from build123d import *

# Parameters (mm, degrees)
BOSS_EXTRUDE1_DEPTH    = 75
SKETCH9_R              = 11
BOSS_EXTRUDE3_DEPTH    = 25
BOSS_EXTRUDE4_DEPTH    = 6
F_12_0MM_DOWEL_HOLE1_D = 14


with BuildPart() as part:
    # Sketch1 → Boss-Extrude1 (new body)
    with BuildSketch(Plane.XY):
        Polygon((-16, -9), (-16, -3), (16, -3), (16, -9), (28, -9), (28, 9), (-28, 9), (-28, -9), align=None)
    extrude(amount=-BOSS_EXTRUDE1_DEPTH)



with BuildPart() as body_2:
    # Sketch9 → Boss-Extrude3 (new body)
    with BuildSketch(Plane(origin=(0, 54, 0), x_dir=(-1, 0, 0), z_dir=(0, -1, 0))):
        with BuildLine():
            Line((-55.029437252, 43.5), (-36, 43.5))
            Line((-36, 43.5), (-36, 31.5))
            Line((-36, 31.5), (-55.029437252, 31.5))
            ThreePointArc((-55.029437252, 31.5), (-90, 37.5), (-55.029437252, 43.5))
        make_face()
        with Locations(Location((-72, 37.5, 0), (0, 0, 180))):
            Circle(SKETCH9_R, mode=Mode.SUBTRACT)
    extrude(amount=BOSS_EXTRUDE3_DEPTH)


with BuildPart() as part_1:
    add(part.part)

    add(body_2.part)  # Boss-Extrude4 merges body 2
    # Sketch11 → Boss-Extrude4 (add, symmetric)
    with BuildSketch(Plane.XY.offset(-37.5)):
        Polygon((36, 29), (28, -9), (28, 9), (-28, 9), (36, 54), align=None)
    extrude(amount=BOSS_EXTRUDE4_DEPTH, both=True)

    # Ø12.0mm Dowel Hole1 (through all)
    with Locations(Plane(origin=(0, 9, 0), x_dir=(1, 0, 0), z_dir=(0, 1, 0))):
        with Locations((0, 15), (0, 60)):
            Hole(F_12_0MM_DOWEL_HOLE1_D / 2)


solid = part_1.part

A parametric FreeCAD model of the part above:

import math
import FreeCAD as App
import Part
import Sketcher
Q = App.Units.Quantity


def add_polygon(sketch, points):
    """Adds a closed chain of lines whose ends are joined by coincident constraints."""
    first, n = sketch.GeometryCount, len(points)
    for a, b in zip(points, points[1:] + points[:1]):
        sketch.addGeometry(Part.LineSegment(App.Vector(*a, 0), App.Vector(*b, 0)), False)
    for i in range(n):
        sketch.addConstraint(Sketcher.Constraint("Coincident", first + i, 2, first + (i + 1) % n, 1))

doc = App.newDocument("Part")
params = doc.addObject("Spreadsheet::Sheet", "Params")
for row, (alias, value) in enumerate([
    ("sketch1_width", "32 mm"),
    ("sketch1_width2", "12 mm"),
    ("sketch1_height", "6 mm"),
    ("sketch1_height2", "18 mm"),
    ("pad1_length", "75 mm"),
    ("sketch2_diameter", "22 mm"),
    ("sketch2_radius", "18 mm"),
    ("sketch2_height", "12 mm"),
    ("pad2_length", "25 mm"),
    ("sketch3_width", "56 mm"),
    ("sketch3_height", "25 mm"),
    ("sketch3_height2", "18 mm"),
    ("pad3_length", "12 mm"),
    ("sketch4_diameter", "14 mm"),
    ("hole_diameter", "14 mm"),
], start=1):
    params.set(f"A{row}", alias)
    params.set(f"B{row}", "=" + value)
    params.setAlias(f"B{row}", alias)

body = doc.addObject("PartDesign::Body", "Body")

# Sketch on XY plane
sketch1 = body.newObject("Sketcher::SketchObject", "Sketch")
sketch1.AttachmentSupport = (doc.getObject("XY_Plane"), [""])
sketch1.MapMode = "FlatFace"
add_polygon(sketch1, [(-16, -9), (-16, -3), (16, -3), (16, -9), (28, -9), (28, 9), (-28, 9), (-28, -9)])  # lines 0-7
sketch1.addConstraint(Sketcher.Constraint("Vertical", 0))
sketch1.addConstraint(Sketcher.Constraint("Horizontal", 1))
sketch1.addConstraint(Sketcher.Constraint("Vertical", 2))
sketch1.addConstraint(Sketcher.Constraint("Horizontal", 3))
sketch1.addConstraint(Sketcher.Constraint("Vertical", 4))
sketch1.addConstraint(Sketcher.Constraint("Horizontal", 5))
sketch1.addConstraint(Sketcher.Constraint("Vertical", 6))
sketch1.addConstraint(Sketcher.Constraint("Horizontal", 7))
sketch1.addConstraint(Sketcher.Constraint("Symmetric", 3, 2, 5, 2, -1, 1))
sketch1.addConstraint(Sketcher.Constraint("Symmetric", 2, 2, 7, 2, -2))
sketch1.addConstraint(Sketcher.Constraint("DistanceX", 1, 1, 1, 2, Q("32 mm")))
sketch1.addConstraint(Sketcher.Constraint("DistanceX", 3, 1, 3, 2, Q("12 mm")))
sketch1.addConstraint(Sketcher.Constraint("DistanceY", 0, 1, 0, 2, Q("6 mm")))
sketch1.addConstraint(Sketcher.Constraint("DistanceY", 4, 1, 4, 2, Q("18 mm")))
sketch1.setExpression("Constraints[18]", "Params.sketch1_width")
sketch1.setExpression("Constraints[19]", "Params.sketch1_width2")
sketch1.setExpression("Constraints[20]", "Params.sketch1_height")
sketch1.setExpression("Constraints[21]", "Params.sketch1_height2")
pad1 = body.newObject("PartDesign::Pad", "Pad")
pad1.Profile = sketch1
pad1.setExpression("Length", "Params.pad1_length")
pad1.Reversed = True
body2 = doc.addObject("PartDesign::Body", "Body001")

# Sketch on XZ plane
sketch2 = body2.newObject("Sketcher::SketchObject", "Sketch001")
sketch2.AttachmentSupport = (doc.getObject("XZ_Plane001"), [""])
sketch2.MapMode = "FlatFace"
sketch2.AttachmentOffset = App.Placement(App.Vector(0, 0, -54), App.Rotation())
sketch2.addGeometry(Part.LineSegment(App.Vector(36, -44, 0), App.Vector(55, -44, 0)), False)
sketch2.addGeometry(Part.ArcOfCircle(Part.Circle(App.Vector(72, -38, 0), App.Vector(0, 0, 1), 18), math.radians(-161), math.radians(161)), False)
sketch2.addGeometry(Part.LineSegment(App.Vector(55, -32, 0), App.Vector(36, -32, 0)), False)
sketch2.addGeometry(Part.LineSegment(App.Vector(36, -32, 0), App.Vector(36, -44, 0)), False)
sketch2.addGeometry(Part.Circle(App.Vector(72, -38, 0), App.Vector(0, 0, 1), 11), False)
sketch2.addConstraint(Sketcher.Constraint("Coincident", 0, 2, 1, 1))
sketch2.addConstraint(Sketcher.Constraint("Coincident", 1, 2, 2, 1))
sketch2.addConstraint(Sketcher.Constraint("Coincident", 2, 2, 3, 1))
sketch2.addConstraint(Sketcher.Constraint("Coincident", 3, 2, 0, 1))
sketch2.addConstraint(Sketcher.Constraint("Horizontal", 0))
sketch2.addConstraint(Sketcher.Constraint("Horizontal", 2))
sketch2.addConstraint(Sketcher.Constraint("Vertical", 3))
sketch2.addConstraint(Sketcher.Constraint("Coincident", 4, 3, 1, 3))
sketch2.addConstraint(Sketcher.Constraint("Vertical", 0, 2, 1, 2))
sketch2.addConstraint(Sketcher.Constraint("Diameter", 4, Q("22 mm")))
sketch2.addConstraint(Sketcher.Constraint("Radius", 1, Q("18 mm")))
sketch2.addConstraint(Sketcher.Constraint("DistanceY", 3, 2, 3, 1, Q("12 mm")))
sketch2.addConstraint(Sketcher.Constraint("DistanceX", -1, 1, 1, 3, Q("72 mm")))
sketch2.addConstraint(Sketcher.Constraint("DistanceX", -1, 1, 2, 2, Q("36 mm")))
sketch2.addConstraint(Sketcher.Constraint("DistanceY", 1, 3, -1, 1, Q("37.5 mm")))
sketch2.setExpression("Constraints[9]", "Params.sketch2_diameter")
sketch2.setExpression("Constraints[10]", "Params.sketch2_radius")
sketch2.setExpression("Constraints[11]", "Params.sketch2_height")
pad2 = body2.newObject("PartDesign::Pad", "Pad001")
pad2.Profile = sketch2
pad2.setExpression("Length", "Params.pad2_length")
body.AllowCompound = True
doc.recompute()

boolean = body.newObject("PartDesign::Boolean", "Boolean")
boolean.Type = "Fuse"
boolean.addObjects([body2])

# Sketch on XY plane
sketch3 = body.newObject("Sketcher::SketchObject", "Sketch002")
sketch3.AttachmentSupport = (doc.getObject("XY_Plane"), [""])
sketch3.MapMode = "FlatFace"
sketch3.AttachmentOffset = App.Placement(App.Vector(0, 0, -37.5), App.Rotation())
add_polygon(sketch3, [(28, -9), (36, 29), (36, 54), (-28, 9), (28, 9)])  # lines 0-4
sketch3.addConstraint(Sketcher.Constraint("Vertical", 1))
sketch3.addConstraint(Sketcher.Constraint("Horizontal", 3))
sketch3.addConstraint(Sketcher.Constraint("Vertical", 4))
sketch3.addConstraint(Sketcher.Constraint("Symmetric", 2, 2, 4, 2, -1, 1))
sketch3.addConstraint(Sketcher.Constraint("DistanceX", 3, 1, 3, 2, Q("56 mm")))
sketch3.addConstraint(Sketcher.Constraint("DistanceY", 1, 1, 1, 2, Q("25 mm")))
sketch3.addConstraint(Sketcher.Constraint("DistanceY", 4, 2, 4, 1, Q("18 mm")))
sketch3.addConstraint(Sketcher.Constraint("DistanceX", -1, 1, 0, 2, Q("36 mm")))
sketch3.addConstraint(Sketcher.Constraint("DistanceY", -1, 1, 0, 2, Q("29 mm")))
sketch3.setExpression("Constraints[9]", "Params.sketch3_width")
sketch3.setExpression("Constraints[10]", "Params.sketch3_height")
sketch3.setExpression("Constraints[11]", "Params.sketch3_height2")
pad3 = body.newObject("PartDesign::Pad", "Pad002")
pad3.Profile = sketch3
pad3.setExpression("Length", "Params.pad3_length")
pad3.Midplane = True

# Sketch on XZ plane
sketch4 = body.newObject("Sketcher::SketchObject", "Sketch003")
sketch4.AttachmentSupport = (doc.getObject("XZ_Plane"), [""])
sketch4.MapMode = "FlatFace"
sketch4.AttachmentOffset = App.Placement(App.Vector(0, 0, -9), App.Rotation())
sketch4.addGeometry(Part.Circle(App.Vector(0, -15, 0), App.Vector(0, 0, 1), 7), False)
sketch4.addGeometry(Part.Circle(App.Vector(0, -60, 0), App.Vector(0, 0, 1), 7), False)
sketch4.addConstraint(Sketcher.Constraint("Equal", 0, 1))
sketch4.addConstraint(Sketcher.Constraint("PointOnObject", 0, 3, -2))
sketch4.addConstraint(Sketcher.Constraint("PointOnObject", 1, 3, -2))
sketch4.addConstraint(Sketcher.Constraint("Diameter", 0, Q("14 mm")))
sketch4.addConstraint(Sketcher.Constraint("DistanceY", 0, 3, -1, 1, Q("15 mm")))
sketch4.addConstraint(Sketcher.Constraint("DistanceY", 1, 3, -1, 1, Q("60 mm")))
sketch4.setExpression("Constraints[3]", "Params.sketch4_diameter")
doc.recompute()
hole = body.newObject("PartDesign::Hole", "Hole")
hole.Profile = sketch4
hole.ThreadType = "None"
hole.setExpression("Diameter", "Params.hole_diameter")
hole.DepthType = "ThroughAll"
hole.Reversed = True

doc.recompute()
